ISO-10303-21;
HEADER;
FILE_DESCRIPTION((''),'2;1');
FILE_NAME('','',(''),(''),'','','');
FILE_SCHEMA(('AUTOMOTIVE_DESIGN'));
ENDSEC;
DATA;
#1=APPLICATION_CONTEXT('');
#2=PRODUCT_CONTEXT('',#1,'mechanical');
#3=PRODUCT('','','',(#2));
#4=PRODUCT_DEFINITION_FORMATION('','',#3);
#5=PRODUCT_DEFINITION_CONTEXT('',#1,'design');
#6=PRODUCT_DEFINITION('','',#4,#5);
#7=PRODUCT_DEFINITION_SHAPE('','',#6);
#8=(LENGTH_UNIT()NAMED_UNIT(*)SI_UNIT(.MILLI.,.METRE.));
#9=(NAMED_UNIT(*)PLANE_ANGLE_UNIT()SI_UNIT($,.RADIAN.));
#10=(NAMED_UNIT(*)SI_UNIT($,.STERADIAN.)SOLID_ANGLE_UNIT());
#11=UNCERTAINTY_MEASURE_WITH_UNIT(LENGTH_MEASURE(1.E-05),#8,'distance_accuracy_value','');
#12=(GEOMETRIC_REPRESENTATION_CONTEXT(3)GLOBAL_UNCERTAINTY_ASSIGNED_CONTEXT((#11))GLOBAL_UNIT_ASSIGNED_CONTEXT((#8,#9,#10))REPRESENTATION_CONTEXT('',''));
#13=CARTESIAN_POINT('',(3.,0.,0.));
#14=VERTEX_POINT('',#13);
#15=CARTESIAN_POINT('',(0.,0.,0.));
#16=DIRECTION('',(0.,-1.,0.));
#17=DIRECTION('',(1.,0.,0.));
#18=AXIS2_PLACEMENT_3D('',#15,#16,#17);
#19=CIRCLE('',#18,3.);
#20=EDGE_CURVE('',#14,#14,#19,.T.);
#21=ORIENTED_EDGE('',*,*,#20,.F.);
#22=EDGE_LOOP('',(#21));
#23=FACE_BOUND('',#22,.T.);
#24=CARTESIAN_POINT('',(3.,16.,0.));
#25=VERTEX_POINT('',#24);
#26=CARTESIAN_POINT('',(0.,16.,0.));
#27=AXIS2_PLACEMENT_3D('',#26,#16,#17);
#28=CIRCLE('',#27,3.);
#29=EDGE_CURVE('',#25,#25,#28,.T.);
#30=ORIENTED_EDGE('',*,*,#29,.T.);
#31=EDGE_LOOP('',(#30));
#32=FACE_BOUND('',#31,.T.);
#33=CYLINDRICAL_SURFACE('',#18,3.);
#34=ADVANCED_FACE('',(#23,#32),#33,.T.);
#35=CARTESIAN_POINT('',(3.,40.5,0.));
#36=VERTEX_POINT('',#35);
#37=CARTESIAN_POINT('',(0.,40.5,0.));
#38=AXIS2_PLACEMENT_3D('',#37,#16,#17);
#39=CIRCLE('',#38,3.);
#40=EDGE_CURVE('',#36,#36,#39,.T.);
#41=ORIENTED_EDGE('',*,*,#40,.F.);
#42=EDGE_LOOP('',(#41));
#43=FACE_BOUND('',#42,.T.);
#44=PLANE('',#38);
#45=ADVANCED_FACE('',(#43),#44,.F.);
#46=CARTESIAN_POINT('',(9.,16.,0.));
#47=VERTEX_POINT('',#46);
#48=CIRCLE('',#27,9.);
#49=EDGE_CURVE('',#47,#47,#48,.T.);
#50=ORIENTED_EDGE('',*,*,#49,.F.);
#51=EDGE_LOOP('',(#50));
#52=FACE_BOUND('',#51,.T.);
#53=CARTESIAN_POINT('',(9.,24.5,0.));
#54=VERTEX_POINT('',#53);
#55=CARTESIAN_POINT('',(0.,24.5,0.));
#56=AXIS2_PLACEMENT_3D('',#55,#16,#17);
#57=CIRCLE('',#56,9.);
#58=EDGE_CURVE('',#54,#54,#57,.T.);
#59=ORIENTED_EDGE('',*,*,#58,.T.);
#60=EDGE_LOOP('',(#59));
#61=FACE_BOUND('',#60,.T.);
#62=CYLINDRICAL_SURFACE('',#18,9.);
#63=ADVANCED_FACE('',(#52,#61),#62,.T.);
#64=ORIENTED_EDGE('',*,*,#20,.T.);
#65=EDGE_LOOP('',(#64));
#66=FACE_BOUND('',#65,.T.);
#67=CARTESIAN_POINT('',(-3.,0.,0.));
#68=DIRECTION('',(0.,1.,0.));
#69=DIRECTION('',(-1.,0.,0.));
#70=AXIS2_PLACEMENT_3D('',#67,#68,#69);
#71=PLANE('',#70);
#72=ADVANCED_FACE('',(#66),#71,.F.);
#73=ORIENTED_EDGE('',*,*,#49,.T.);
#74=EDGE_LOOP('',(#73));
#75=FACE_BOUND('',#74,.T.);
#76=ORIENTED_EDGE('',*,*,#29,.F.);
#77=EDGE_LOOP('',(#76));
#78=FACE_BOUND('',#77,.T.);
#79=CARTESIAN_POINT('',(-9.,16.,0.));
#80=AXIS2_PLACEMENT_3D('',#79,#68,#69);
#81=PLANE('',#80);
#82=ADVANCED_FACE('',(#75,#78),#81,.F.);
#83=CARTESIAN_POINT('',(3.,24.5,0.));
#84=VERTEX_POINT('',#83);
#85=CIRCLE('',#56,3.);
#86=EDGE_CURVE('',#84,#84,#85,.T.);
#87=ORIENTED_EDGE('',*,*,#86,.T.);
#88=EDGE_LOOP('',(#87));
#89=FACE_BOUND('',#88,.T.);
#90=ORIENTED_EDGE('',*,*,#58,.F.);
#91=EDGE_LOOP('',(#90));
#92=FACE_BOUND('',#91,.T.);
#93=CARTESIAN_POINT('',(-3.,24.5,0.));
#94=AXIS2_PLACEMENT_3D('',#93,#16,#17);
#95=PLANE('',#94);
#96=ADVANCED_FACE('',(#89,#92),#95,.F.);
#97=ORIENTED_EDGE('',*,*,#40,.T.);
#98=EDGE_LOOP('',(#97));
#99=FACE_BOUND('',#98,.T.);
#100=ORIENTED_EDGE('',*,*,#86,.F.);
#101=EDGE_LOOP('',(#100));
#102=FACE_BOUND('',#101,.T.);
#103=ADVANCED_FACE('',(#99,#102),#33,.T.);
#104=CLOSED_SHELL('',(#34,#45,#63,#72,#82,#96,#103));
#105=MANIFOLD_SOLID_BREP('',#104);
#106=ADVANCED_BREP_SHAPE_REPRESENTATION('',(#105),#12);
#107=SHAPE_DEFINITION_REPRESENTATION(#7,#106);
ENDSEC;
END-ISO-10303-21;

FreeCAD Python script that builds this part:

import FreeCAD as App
import Part
import Sketcher

V = App.Vector
Q = App.Units.Quantity


def add_polygon(sketch, points):
    """Adds a closed chain of lines whose ends are joined by coincident constraints."""
    first, n = sketch.GeometryCount, len(points)
    for a, b in zip(points, points[1:] + points[:1]):
        sketch.addGeometry(Part.LineSegment(App.Vector(*a, 0), App.Vector(*b, 0)), False)
    for i in range(n):
        sketch.addConstraint(Sketcher.Constraint("Coincident", first + i, 2, first + (i + 1) % n, 1))

doc = App.newDocument("Part")
params = doc.addObject("Spreadsheet::Sheet", "Params")
for row, (alias, value) in enumerate([
    ("sketch1_width", "3 mm"),
    ("sketch1_width2", "6 mm"),
    ("sketch1_height", "16 mm"),
    ("sketch1_height2", "8.5 mm"),
    ("revolution_angle", "360 deg"),
], start=1):
    params.set(f"A{row}", alias)
    params.set(f"B{row}", "=" + value)
    params.setAlias(f"B{row}", alias)

body = doc.addObject("PartDesign::Body", "Body")

# Sketch on XY plane
sketch1 = body.newObject("Sketcher::SketchObject", "Sketch")
sketch1.AttachmentSupport = (doc.getObject("XY_Plane"), [""])
sketch1.MapMode = "FlatFace"
add_polygon(sketch1, [(0, 40.5), (-3, 40.5), (-3, 24.5), (-9, 24.5), (-9, 16), (-3, 16), (-3, 0), (0, 0)])  # lines 0-7
sketch1.addConstraint([
    Sketcher.Constraint("Horizontal", 0),
    Sketcher.Constraint("Vertical", 1),
    Sketcher.Constraint("Horizontal", 2),
    Sketcher.Constraint("Vertical", 3),
    Sketcher.Constraint("Horizontal", 4),
    Sketcher.Constraint("Vertical", 5),
    Sketcher.Constraint("Horizontal", 6),
    Sketcher.Constraint("Vertical", 7),
    Sketcher.Constraint("Coincident", 6, 2, -1, 1),
    Sketcher.Constraint("Vertical", 1, 2, 4, 2),
    Sketcher.Constraint("Equal", 1, 5),
    Sketcher.Constraint("DistanceX", 0, 2, 0, 1, Q("3 mm")),
    Sketcher.Constraint("DistanceX", 2, 2, 2, 1, Q("6 mm")),
    Sketcher.Constraint("DistanceY", 1, 2, 1, 1, Q("16 mm")),
    Sketcher.Constraint("DistanceY", 3, 2, 3, 1, Q("8.5 mm")),
])
sketch1.setExpression("Constraints[19]", "Params.sketch1_width")
sketch1.setExpression("Constraints[20]", "Params.sketch1_width2")
sketch1.setExpression("Constraints[21]", "Params.sketch1_height")
sketch1.setExpression("Constraints[22]", "Params.sketch1_height2")
revolution = body.newObject("PartDesign::Revolution", "Revolution")
revolution.Profile = sketch1
revolution.ReferenceAxis = (sketch1, ["V_Axis"])
revolution.setExpression("Angle", "Params.revolution_angle")

doc.recompute()
